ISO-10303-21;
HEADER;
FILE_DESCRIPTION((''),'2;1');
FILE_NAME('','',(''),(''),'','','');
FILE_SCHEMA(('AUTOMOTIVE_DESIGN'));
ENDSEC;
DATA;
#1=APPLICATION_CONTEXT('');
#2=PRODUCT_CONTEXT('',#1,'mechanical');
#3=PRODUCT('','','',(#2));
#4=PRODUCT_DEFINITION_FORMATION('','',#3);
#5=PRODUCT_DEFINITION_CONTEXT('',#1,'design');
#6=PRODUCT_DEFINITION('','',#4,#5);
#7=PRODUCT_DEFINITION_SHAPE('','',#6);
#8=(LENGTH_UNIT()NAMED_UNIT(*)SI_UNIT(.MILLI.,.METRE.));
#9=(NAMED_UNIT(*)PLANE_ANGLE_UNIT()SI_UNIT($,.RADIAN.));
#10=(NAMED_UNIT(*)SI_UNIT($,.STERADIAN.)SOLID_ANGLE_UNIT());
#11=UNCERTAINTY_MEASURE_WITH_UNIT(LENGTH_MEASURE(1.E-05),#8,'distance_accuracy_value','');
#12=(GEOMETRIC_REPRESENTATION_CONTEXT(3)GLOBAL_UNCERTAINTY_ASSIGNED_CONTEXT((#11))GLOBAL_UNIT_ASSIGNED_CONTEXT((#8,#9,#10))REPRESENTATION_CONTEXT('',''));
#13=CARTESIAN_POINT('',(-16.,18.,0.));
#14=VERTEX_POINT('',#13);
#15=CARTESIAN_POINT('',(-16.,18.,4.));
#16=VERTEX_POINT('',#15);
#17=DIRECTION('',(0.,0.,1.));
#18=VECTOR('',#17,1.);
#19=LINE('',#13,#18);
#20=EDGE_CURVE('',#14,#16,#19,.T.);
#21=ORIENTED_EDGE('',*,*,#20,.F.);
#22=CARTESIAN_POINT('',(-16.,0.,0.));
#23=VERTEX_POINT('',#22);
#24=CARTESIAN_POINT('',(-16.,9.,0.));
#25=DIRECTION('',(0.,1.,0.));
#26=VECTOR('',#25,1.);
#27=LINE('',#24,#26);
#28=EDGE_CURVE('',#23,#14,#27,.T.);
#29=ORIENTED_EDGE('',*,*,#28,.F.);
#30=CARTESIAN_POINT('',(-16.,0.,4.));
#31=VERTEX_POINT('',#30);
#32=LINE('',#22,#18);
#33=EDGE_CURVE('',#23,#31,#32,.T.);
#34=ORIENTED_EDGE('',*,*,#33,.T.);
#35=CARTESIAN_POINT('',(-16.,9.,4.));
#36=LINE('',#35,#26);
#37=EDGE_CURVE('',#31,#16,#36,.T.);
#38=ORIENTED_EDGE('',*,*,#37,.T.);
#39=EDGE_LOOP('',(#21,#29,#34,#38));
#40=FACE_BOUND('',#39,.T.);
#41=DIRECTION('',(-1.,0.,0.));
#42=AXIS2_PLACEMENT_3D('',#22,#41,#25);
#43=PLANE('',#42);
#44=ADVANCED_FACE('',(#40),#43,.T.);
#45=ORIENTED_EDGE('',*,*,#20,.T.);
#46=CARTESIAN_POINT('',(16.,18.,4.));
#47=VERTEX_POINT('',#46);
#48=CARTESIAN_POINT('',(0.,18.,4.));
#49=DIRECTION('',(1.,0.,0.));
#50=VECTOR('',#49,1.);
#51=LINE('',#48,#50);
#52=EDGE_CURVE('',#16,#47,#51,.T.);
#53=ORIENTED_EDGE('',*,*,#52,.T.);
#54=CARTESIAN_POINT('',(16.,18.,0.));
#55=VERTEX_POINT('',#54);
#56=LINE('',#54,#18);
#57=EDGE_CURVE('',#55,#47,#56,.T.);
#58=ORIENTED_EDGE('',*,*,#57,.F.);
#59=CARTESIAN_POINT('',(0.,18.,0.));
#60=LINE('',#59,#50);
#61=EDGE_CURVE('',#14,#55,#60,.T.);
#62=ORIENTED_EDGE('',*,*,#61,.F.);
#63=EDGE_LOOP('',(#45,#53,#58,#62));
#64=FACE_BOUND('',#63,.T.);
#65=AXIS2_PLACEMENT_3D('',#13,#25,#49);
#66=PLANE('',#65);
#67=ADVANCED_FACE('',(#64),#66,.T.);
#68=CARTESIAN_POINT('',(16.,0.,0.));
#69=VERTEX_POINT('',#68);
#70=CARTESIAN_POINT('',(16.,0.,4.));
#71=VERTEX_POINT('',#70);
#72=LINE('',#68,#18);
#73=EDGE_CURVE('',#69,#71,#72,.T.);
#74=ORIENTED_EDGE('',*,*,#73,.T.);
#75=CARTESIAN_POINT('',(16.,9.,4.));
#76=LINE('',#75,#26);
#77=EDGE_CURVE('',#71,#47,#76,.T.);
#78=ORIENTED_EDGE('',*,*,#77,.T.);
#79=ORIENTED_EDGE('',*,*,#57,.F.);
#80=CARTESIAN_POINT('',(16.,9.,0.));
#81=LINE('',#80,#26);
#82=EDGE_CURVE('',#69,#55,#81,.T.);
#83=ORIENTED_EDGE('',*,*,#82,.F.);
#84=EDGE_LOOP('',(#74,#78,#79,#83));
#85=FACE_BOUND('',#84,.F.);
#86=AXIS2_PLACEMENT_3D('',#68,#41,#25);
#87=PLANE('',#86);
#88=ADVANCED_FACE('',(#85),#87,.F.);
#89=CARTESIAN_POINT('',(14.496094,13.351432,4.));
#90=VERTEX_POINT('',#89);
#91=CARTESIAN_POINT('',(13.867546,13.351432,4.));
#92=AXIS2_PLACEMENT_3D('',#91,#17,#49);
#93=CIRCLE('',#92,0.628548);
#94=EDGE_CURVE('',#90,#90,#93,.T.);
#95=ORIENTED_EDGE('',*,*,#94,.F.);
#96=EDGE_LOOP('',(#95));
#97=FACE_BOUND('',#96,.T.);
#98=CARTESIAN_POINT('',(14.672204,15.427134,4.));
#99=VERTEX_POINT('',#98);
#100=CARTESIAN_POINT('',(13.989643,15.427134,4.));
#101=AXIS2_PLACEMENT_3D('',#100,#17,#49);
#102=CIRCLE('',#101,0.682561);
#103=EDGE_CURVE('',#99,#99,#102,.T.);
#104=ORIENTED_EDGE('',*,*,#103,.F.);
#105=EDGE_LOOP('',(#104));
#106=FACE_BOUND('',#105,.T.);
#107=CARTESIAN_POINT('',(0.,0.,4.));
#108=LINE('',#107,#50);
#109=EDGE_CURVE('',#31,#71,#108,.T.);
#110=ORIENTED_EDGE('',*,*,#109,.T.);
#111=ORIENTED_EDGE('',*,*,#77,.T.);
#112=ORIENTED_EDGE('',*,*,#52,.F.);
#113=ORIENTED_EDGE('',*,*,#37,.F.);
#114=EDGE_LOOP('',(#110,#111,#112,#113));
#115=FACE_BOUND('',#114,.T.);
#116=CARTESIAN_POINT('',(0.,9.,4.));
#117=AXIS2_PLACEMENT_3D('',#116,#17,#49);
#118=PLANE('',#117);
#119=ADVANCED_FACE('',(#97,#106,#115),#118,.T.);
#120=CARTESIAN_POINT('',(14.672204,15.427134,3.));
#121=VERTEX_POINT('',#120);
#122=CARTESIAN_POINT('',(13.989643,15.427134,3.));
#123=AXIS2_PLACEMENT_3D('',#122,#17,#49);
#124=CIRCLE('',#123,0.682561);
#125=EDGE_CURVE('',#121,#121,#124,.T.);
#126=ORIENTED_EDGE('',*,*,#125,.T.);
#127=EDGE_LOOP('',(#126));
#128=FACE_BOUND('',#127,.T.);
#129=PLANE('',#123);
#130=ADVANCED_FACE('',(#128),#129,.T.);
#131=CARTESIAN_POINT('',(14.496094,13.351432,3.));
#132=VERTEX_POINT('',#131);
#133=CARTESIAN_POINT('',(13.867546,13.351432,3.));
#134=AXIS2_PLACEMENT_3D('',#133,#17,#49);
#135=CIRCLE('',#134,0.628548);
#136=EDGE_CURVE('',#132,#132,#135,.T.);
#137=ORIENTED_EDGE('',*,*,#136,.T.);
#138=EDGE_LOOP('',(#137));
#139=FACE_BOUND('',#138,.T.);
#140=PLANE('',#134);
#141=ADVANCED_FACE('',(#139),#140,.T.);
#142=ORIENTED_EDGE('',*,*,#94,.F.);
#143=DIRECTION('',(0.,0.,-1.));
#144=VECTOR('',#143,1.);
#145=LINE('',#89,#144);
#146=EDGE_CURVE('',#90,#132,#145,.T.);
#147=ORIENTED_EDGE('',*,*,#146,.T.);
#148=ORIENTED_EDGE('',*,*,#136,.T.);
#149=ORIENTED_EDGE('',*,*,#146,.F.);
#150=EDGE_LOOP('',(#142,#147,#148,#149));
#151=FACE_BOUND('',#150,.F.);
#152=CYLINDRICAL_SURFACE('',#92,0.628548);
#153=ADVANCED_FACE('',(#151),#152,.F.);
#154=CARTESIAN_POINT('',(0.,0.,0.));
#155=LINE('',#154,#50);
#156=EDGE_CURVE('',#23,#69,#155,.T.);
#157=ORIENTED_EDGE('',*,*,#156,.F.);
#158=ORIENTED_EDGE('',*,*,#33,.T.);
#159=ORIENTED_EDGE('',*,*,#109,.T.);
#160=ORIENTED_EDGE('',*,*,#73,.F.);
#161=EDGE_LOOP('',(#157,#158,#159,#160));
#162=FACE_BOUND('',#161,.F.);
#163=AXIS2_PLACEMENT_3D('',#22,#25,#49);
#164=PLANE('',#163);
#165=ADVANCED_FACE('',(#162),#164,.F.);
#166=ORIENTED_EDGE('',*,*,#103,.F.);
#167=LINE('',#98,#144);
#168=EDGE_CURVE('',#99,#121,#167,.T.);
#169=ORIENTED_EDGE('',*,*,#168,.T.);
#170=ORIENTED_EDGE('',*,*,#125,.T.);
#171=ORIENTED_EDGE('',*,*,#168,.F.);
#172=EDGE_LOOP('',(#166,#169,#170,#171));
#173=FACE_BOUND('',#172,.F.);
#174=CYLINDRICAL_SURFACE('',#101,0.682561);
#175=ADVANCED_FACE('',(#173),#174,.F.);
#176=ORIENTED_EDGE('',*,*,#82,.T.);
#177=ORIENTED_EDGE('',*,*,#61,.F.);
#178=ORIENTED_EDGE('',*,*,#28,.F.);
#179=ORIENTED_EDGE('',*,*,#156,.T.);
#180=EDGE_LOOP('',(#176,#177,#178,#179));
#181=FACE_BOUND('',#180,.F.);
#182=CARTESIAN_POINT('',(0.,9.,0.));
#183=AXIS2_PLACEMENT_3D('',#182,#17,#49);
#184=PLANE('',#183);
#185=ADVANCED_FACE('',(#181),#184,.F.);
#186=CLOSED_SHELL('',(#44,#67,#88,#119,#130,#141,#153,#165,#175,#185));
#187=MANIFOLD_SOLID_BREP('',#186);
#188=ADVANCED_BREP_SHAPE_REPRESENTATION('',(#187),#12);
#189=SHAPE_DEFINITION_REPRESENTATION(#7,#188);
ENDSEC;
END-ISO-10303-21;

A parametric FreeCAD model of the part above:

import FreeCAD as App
import Part
import Sketcher

V = App.Vector


def add_polygon(sketch, points):
    """Adds a closed chain of lines whose ends are joined by coincident constraints."""
    first, n = sketch.GeometryCount, len(points)
    for a, b in zip(points, points[1:] + points[:1]):
        sketch.addGeometry(Part.LineSegment(App.Vector(*a, 0), App.Vector(*b, 0)), False)
    for i in range(n):
        sketch.addConstraint(Sketcher.Constraint("Coincident", first + i, 2, first + (i + 1) % n, 1))

doc = App.newDocument("Part")
body = doc.addObject("PartDesign::Body", "Body")

# Sketch on XY plane
sketch1 = body.newObject("Sketcher::SketchObject", "Sketch")
sketch1.AttachmentSupport = (doc.getObject("XY_Plane"), [""])
sketch1.MapMode = "FlatFace"
add_polygon(sketch1, [(-16, 18), (-16, 0), (16, 0), (16, 18)])  # lines 0-3
sketch1.addConstraint([
    Sketcher.Constraint("Vertical", 0),
    Sketcher.Constraint("Horizontal", 1),
    Sketcher.Constraint("Vertical", 2),
    Sketcher.Constraint("Horizontal", 3),
    Sketcher.Constraint("Symmetric", 0, 2, 1, 2, -1, 1),
    Sketcher.Constraint("DistanceX", 1, 1, 1, 2, 32.0),
    Sketcher.Constraint("DistanceY", 0, 2, 0, 1, 18.0),
])
pad1 = body.newObject("PartDesign::Pad", "Pad")
pad1.Profile = sketch1
pad1.Length = 4

# Sketch on XY plane
sketch2 = body.newObject("Sketcher::SketchObject", "Sketch001")
sketch2.AttachmentSupport = (doc.getObject("XY_Plane"), [""])
sketch2.MapMode = "FlatFace"
sketch2.AttachmentOffset = App.Placement(V(0, 0, 4), App.Rotation())
sketch2.addGeometry([
    Part.Circle(V(14, 15.4, 0), V(0, 0, 1), 0.7),
    Part.Circle(V(13.9, 13.4, 0), V(0, 0, 1), 0.6),
], False)
sketch2.addConstraint([
    Sketcher.Constraint("Diameter", 0, 1.365122),
    Sketcher.Constraint("Diameter", 1, 1.257096),
    Sketcher.Constraint("DistanceY", 1, 3, 0, 3, 2.075702),
    Sketcher.Constraint("DistanceX", -1, 1, 0, 3, 13.989643),
    Sketcher.Constraint("DistanceY", -1, 1, 0, 3, 15.427134),
    Sketcher.Constraint("DistanceX", -1, 1, 1, 3, 13.867546),
])
pocket1 = body.newObject("PartDesign::Pocket", "Pocket")
pocket1.Profile = sketch2
pocket1.Length = 1

doc.recompute()
